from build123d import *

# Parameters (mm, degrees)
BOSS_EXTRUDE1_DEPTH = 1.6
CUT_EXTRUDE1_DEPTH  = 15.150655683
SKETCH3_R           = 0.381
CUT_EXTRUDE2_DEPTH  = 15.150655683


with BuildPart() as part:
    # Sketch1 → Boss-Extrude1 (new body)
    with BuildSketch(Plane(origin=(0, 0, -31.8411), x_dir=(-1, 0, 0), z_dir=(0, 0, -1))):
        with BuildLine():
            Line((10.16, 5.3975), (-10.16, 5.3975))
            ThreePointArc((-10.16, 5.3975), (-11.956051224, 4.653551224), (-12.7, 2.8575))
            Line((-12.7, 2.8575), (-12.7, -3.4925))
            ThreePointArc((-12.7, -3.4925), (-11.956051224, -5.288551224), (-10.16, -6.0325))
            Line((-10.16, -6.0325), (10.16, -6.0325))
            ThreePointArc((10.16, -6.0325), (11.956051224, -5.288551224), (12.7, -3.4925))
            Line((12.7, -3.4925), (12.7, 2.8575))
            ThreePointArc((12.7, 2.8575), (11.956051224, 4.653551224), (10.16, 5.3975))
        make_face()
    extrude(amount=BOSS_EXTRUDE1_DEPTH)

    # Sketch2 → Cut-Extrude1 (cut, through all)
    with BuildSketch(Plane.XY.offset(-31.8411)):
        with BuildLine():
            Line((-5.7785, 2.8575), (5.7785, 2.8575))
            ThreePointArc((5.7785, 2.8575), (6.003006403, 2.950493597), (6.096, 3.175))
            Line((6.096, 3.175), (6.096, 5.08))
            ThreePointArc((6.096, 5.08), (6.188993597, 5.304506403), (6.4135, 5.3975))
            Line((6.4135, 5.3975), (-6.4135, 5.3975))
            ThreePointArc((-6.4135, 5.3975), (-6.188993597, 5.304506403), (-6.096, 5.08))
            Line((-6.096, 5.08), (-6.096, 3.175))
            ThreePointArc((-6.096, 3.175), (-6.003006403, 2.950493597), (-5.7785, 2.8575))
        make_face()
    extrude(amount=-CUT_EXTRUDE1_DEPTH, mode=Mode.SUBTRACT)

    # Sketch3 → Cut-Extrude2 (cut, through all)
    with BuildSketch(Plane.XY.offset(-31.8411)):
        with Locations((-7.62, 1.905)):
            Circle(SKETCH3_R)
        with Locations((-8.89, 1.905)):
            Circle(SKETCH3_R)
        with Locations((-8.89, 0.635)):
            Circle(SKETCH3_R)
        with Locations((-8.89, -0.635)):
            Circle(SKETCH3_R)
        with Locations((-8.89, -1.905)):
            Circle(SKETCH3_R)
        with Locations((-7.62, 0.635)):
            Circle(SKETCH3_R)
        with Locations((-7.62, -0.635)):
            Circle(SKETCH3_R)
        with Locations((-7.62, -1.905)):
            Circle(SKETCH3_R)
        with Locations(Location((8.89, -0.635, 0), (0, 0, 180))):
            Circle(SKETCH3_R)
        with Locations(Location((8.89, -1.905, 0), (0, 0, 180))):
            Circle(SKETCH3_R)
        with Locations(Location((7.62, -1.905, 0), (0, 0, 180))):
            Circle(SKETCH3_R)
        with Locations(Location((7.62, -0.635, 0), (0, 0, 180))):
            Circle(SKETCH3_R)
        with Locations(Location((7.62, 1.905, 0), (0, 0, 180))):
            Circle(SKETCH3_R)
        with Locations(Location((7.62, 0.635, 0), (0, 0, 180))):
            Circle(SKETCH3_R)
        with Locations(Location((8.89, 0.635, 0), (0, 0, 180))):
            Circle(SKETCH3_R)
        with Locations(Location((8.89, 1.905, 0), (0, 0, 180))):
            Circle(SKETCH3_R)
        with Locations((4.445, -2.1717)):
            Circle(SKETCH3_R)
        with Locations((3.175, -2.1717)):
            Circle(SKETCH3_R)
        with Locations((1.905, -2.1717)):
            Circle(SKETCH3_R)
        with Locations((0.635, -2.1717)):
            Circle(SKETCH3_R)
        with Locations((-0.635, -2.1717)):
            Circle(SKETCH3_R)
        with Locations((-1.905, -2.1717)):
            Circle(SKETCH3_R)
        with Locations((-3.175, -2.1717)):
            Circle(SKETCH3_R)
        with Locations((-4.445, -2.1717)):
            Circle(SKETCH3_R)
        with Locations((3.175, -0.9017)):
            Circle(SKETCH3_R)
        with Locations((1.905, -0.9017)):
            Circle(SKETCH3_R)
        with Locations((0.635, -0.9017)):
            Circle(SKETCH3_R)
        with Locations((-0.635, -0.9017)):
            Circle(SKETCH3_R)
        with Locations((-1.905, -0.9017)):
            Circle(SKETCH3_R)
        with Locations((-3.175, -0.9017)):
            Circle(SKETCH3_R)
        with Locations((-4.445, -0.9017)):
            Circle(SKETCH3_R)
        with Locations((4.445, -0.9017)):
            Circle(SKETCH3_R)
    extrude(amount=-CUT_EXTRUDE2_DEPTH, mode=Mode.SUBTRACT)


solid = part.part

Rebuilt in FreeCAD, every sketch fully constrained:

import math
import FreeCAD as App
import Part
import Sketcher

V = App.Vector
Q = App.Units.Quantity

doc = App.newDocument("Part")
params = doc.addObject("Spreadsheet::Sheet", "Params")
for row, (alias, value) in enumerate([
    ("sketch1_radius", "0.1 in"),
    ("sketch1_width", "0.8 in"),
    ("sketch1_height", "0.25 in"),
    ("pad1_length", "1.6 mm"),
    ("sketch2_width", "0.455 in"),
    ("sketch3_diameter", "0.03 in"),
], start=1):
    params.set(f"A{row}", alias)
    params.set(f"B{row}", "=" + value)
    params.setAlias(f"B{row}", alias)

body = doc.addObject("PartDesign::Body", "Body")

# Sketch on XY plane
sketch1 = body.newObject("Sketcher::SketchObject", "Sketch")
sketch1.AttachmentSupport = (doc.getObject("XY_Plane"), [""])
sketch1.MapMode = "FlatFace"
sketch1.AttachmentOffset = App.Placement(V(0, 0, -31.8411), App.Rotation())
sketch1.addGeometry(Part.LineSegment(V(-10.2, 5.4, 0), V(10.2, 5.4, 0)), False)
sketch1.addGeometry(Part.ArcOfCircle(Part.Circle(V(10.2, 2.9, 0), V(0, 0, 1), 2.5), math.radians(0), math.radians(90)), False)
sketch1.addGeometry(Part.LineSegment(V(12.7, 2.9, 0), V(12.7, -3.5, 0)), False)
sketch1.addGeometry(Part.ArcOfCircle(Part.Circle(V(10.2, -3.5, 0), V(0, 0, 1), 2.5), math.radians(-90), math.radians(0)), False)
sketch1.addGeometry(Part.LineSegment(V(10.2, -6, 0), V(-10.2, -6, 0)), False)
sketch1.addGeometry(Part.ArcOfCircle(Part.Circle(V(-10.2, -3.5, 0), V(0, 0, 1), 2.5), math.radians(-180), math.radians(-90)), False)
sketch1.addGeometry(Part.LineSegment(V(-12.7, -3.5, 0), V(-12.7, 2.9, 0)), False)
sketch1.addGeometry(Part.ArcOfCircle(Part.Circle(V(-10.2, 2.9, 0), V(0, 0, 1), 2.5), math.radians(90), math.radians(180)), False)
sketch1.addConstraint(Sketcher.Constraint("Tangent", 0, 2, 1, 2))
sketch1.addConstraint(Sketcher.Constraint("Tangent", 1, 1, 2, 1))
sketch1.addConstraint(Sketcher.Constraint("Tangent", 2, 2, 3, 2))
sketch1.addConstraint(Sketcher.Constraint("Tangent", 3, 1, 4, 1))
sketch1.addConstraint(Sketcher.Constraint("Tangent", 4, 2, 5, 2))
sketch1.addConstraint(Sketcher.Constraint("Tangent", 5, 1, 6, 1))
sketch1.addConstraint(Sketcher.Constraint("Tangent", 6, 2, 7, 2))
sketch1.addConstraint(Sketcher.Constraint("Tangent", 7, 1, 0, 1))
sketch1.addConstraint(Sketcher.Constraint("Horizontal", 0))
sketch1.addConstraint(Sketcher.Constraint("Vertical", 2))
sketch1.addConstraint(Sketcher.Constraint("Horizontal", 4))
sketch1.addConstraint(Sketcher.Constraint("Vertical", 6))
sketch1.addConstraint(Sketcher.Constraint("Equal", 1, 3))
sketch1.addConstraint(Sketcher.Constraint("Equal", 3, 5))
sketch1.addConstraint(Sketcher.Constraint("Equal", 5, 7))
sketch1.addConstraint(Sketcher.Constraint("Radius", 1, Q("0.1 in")))
sketch1.addConstraint(Sketcher.Constraint("DistanceX", 0, 1, 0, 2, Q("0.8 in")))
sketch1.addConstraint(Sketcher.Constraint("DistanceY", 2, 2, 2, 1, Q("0.25 in")))
sketch1.addConstraint(Sketcher.Constraint("DistanceX", -1, 1, 1, 3, Q("0.4 in")))
sketch1.addConstraint(Sketcher.Constraint("DistanceY", -1, 1, 1, 3, Q("0.1125 in")))
sketch1.setExpression("Constraints[15]", "Params.sketch1_radius")
sketch1.setExpression("Constraints[16]", "Params.sketch1_width")
sketch1.setExpression("Constraints[17]", "Params.sketch1_height")
pad1 = body.newObject("PartDesign::Pad", "Pad")
pad1.Profile = sketch1
pad1.setExpression("Length", "Params.pad1_length")
pad1.Reversed = True

# Sketch on XY plane
sketch2 = body.newObject("Sketcher::SketchObject", "Sketch001")
sketch2.AttachmentSupport = (doc.getObject("XY_Plane"), [""])
sketch2.MapMode = "FlatFace"
sketch2.AttachmentOffset = App.Placement(V(0, 0, -31.8411), App.Rotation())
sketch2.addGeometry(Part.LineSegment(V(-5.78, 2.86, 0), V(5.78, 2.86, 0)), False)
sketch2.addGeometry(Part.ArcOfCircle(Part.Circle(V(5.78, 3.17, 0), V(0, 0, 1), 0.32), math.radians(-90), math.radians(0)), False)
sketch2.addGeometry(Part.LineSegment(V(6.1, 3.17, 0), V(6.1, 5.08, 0)), False)
sketch2.addGeometry(Part.ArcOfCircle(Part.Circle(V(6.41, 5.08, 0), V(0, 0, 1), 0.32), math.radians(90), math.radians(180)), False)
sketch2.addGeometry(Part.LineSegment(V(6.41, 5.4, 0), V(-6.41, 5.4, 0)), False)
sketch2.addGeometry(Part.ArcOfCircle(Part.Circle(V(-6.41, 5.08, 0), V(0, 0, 1), 0.32), math.radians(0), math.radians(90)), False)
sketch2.addGeometry(Part.LineSegment(V(-6.1, 5.08, 0), V(-6.1, 3.17, 0)), False)
sketch2.addGeometry(Part.ArcOfCircle(Part.Circle(V(-5.78, 3.17, 0), V(0, 0, 1), 0.32), math.radians(180), math.radians(270)), False)
sketch2.addConstraint(Sketcher.Constraint("Tangent", 0, 2, 1, 1))
sketch2.addConstraint(Sketcher.Constraint("Tangent", 1, 2, 2, 1))
sketch2.addConstraint(Sketcher.Constraint("Tangent", 2, 2, 3, 2))
sketch2.addConstraint(Sketcher.Constraint("Tangent", 3, 1, 4, 1))
sketch2.addConstraint(Sketcher.Constraint("Tangent", 4, 2, 5, 2))
sketch2.addConstraint(Sketcher.Constraint("Tangent", 5, 1, 6, 1))
sketch2.addConstraint(Sketcher.Constraint("Tangent", 6, 2, 7, 1))
sketch2.addConstraint(Sketcher.Constraint("Tangent", 7, 2, 0, 1))
sketch2.addConstraint(Sketcher.Constraint("Horizontal", 0))
sketch2.addConstraint(Sketcher.Constraint("Vertical", 2))
sketch2.addConstraint(Sketcher.Constraint("Horizontal", 4))
sketch2.addConstraint(Sketcher.Constraint("Vertical", 6))
sketch2.addConstraint(Sketcher.Constraint("Equal", 1, 3))
sketch2.addConstraint(Sketcher.Constraint("Equal", 3, 5))
sketch2.addConstraint(Sketcher.Constraint("Equal", 5, 7))
sketch2.addConstraint(Sketcher.Constraint("DistanceY", -1, 1, 3, 3, Q("0.2 in")))
sketch2.addConstraint(Sketcher.Constraint("Radius", 1, Q("0.0125 in")))
sketch2.addConstraint(Sketcher.Constraint("DistanceY", 0, 2, 3, 1, Q("0.1 in")))
sketch2.addConstraint(Sketcher.Constraint("DistanceX", 0, 1, 0, 2, Q("0.455 in")))
sketch2.addConstraint(Sketcher.Constraint("DistanceX", -1, 1, 1, 2, Q("0.24 in")))
sketch2.setExpression("Constraints[18]", "Params.sketch2_width")
pocket1 = body.newObject("PartDesign::Pocket", "Pocket")
pocket1.Profile = sketch2
pocket1.Type = "ThroughAll"

# Sketch on XY plane
sketch3 = body.newObject("Sketcher::SketchObject", "Sketch002")
sketch3.AttachmentSupport = (doc.getObject("XY_Plane"), [""])
sketch3.MapMode = "FlatFace"
sketch3.AttachmentOffset = App.Placement(V(0, 0, -31.8411), App.Rotation())
sketch3.addGeometry(Part.Circle(V(-7.62, 1.91, 0), V(0, 0, 1), 0.38), False)
sketch3.addGeometry(Part.Circle(V(-8.89, 1.91, 0), V(0, 0, 1), 0.38), False)
sketch3.addGeometry(Part.Circle(V(-8.89, 0.64, 0), V(0, 0, 1), 0.38), False)
sketch3.addGeometry(Part.Circle(V(-8.89, -0.64, 0), V(0, 0, 1), 0.38), False)
sketch3.addGeometry(Part.Circle(V(-8.89, -1.91, 0), V(0, 0, 1), 0.38), False)
sketch3.addGeometry(Part.Circle(V(-7.62, 0.64, 0), V(0, 0, 1), 0.38), False)
sketch3.addGeometry(Part.Circle(V(-7.62, -0.64, 0), V(0, 0, 1), 0.38), False)
sketch3.addGeometry(Part.Circle(V(-7.62, -1.91, 0), V(0, 0, 1), 0.38), False)
sketch3.addGeometry(Part.Circle(V(8.89, -0.64, 0), V(0, 0, 1), 0.38), False)
sketch3.addGeometry(Part.Circle(V(8.89, -1.91, 0), V(0, 0, 1), 0.38), False)
sketch3.addGeometry(Part.Circle(V(7.62, -1.91, 0), V(0, 0, 1), 0.38), False)
sketch3.addGeometry(Part.Circle(V(7.62, -0.64, 0), V(0, 0, 1), 0.38), False)
sketch3.addGeometry(Part.Circle(V(7.62, 1.91, 0), V(0, 0, 1), 0.38), False)
sketch3.addGeometry(Part.Circle(V(7.62, 0.64, 0), V(0, 0, 1), 0.38), False)
sketch3.addGeometry(Part.Circle(V(8.89, 0.64, 0), V(0, 0, 1), 0.38), False)
sketch3.addGeometry(Part.Circle(V(8.89, 1.91, 0), V(0, 0, 1), 0.38), False)
sketch3.addGeometry(Part.Circle(V(4.45, -2.17, 0), V(0, 0, 1), 0.38), False)
sketch3.addGeometry(Part.Circle(V(3.17, -2.17, 0), V(0, 0, 1), 0.38), False)
sketch3.addGeometry(Part.Circle(V(1.91, -2.17, 0), V(0, 0, 1), 0.38), False)
sketch3.addGeometry(Part.Circle(V(0.64, -2.17, 0), V(0, 0, 1), 0.38), False)
sketch3.addGeometry(Part.Circle(V(-0.64, -2.17, 0), V(0, 0, 1), 0.38), False)
sketch3.addGeometry(Part.Circle(V(-1.91, -2.17, 0), V(0, 0, 1), 0.38), False)
sketch3.addGeometry(Part.Circle(V(-3.17, -2.17, 0), V(0, 0, 1), 0.38), False)
sketch3.addGeometry(Part.Circle(V(-4.45, -2.17, 0), V(0, 0, 1), 0.38), False)
sketch3.addGeometry(Part.Circle(V(3.17, -0.9, 0), V(0, 0, 1), 0.38), False)
sketch3.addGeometry(Part.Circle(V(1.91, -0.9, 0), V(0, 0, 1), 0.38), False)
sketch3.addGeometry(Part.Circle(V(0.64, -0.9, 0), V(0, 0, 1), 0.38), False)
sketch3.addGeometry(Part.Circle(V(-0.64, -0.9, 0), V(0, 0, 1), 0.38), False)
sketch3.addGeometry(Part.Circle(V(-1.91, -0.9, 0), V(0, 0, 1), 0.38), False)
sketch3.addGeometry(Part.Circle(V(-3.17, -0.9, 0), V(0, 0, 1), 0.38), False)
sketch3.addGeometry(Part.Circle(V(-4.45, -0.9, 0), V(0, 0, 1), 0.38), False)
sketch3.addGeometry(Part.Circle(V(4.45, -0.9, 0), V(0, 0, 1), 0.38), False)
sketch3.addConstraint(Sketcher.Constraint("Equal", 0, 1))
sketch3.addConstraint(Sketcher.Constraint("Equal", 1, 2))
sketch3.addConstraint(Sketcher.Constraint("Equal", 2, 3))
sketch3.addConstraint(Sketcher.Constraint("Equal", 3, 4))
sketch3.addConstraint(Sketcher.Constraint("Equal", 4, 5))
sketch3.addConstraint(Sketcher.Constraint("Equal", 5, 6))
sketch3.addConstraint(Sketcher.Constraint("Equal", 6, 7))
sketch3.addConstraint(Sketcher.Constraint("Equal", 7, 8))
sketch3.addConstraint(Sketcher.Constraint("Equal", 8, 9))
sketch3.addConstraint(Sketcher.Constraint("Equal", 9, 10))
sketch3.addConstraint(Sketcher.Constraint("Equal", 10, 11))
sketch3.addConstraint(Sketcher.Constraint("Equal", 11, 12))
sketch3.addConstraint(Sketcher.Constraint("Equal", 12, 13))
sketch3.addConstraint(Sketcher.Constraint("Equal", 13, 14))
sketch3.addConstraint(Sketcher.Constraint("Equal", 14, 15))
sketch3.addConstraint(Sketcher.Constraint("Equal", 15, 16))
sketch3.addConstraint(Sketcher.Constraint("Equal", 16, 17))
sketch3.addConstraint(Sketcher.Constraint("Equal", 17, 18))
sketch3.addConstraint(Sketcher.Constraint("Equal", 18, 19))
sketch3.addConstraint(Sketcher.Constraint("Equal", 19, 20))
sketch3.addConstraint(Sketcher.Constraint("Equal", 20, 21))
sketch3.addConstraint(Sketcher.Constraint("Equal", 21, 22))
sketch3.addConstraint(Sketcher.Constraint("Equal", 22, 23))
sketch3.addConstraint(Sketcher.Constraint("Equal", 23, 24))
sketch3.addConstraint(Sketcher.Constraint("Equal", 24, 25))
sketch3.addConstraint(Sketcher.Constraint("Equal", 25, 26))
sketch3.addConstraint(Sketcher.Constraint("Equal", 26, 27))
sketch3.addConstraint(Sketcher.Constraint("Equal", 27, 28))
sketch3.addConstraint(Sketcher.Constraint("Equal", 28, 29))
sketch3.addConstraint(Sketcher.Constraint("Equal", 29, 30))
sketch3.addConstraint(Sketcher.Constraint("Equal", 30, 31))
sketch3.addConstraint(Sketcher.Constraint("Symmetric", 2, 3, 8, 3, -1, 1))
sketch3.addConstraint(Sketcher.Constraint("Symmetric", 1, 3, 9, 3, -1, 1))
sketch3.addConstraint(Sketcher.Constraint("Symmetric", 0, 3, 10, 3, -1, 1))
sketch3.addConstraint(Sketcher.Constraint("Symmetric", 5, 3, 11, 3, -1, 1))
sketch3.addConstraint(Sketcher.Constraint("Symmetric", 7, 3, 12, 3, -1, 1))
sketch3.addConstraint(Sketcher.Constraint("Symmetric", 6, 3, 13, 3, -1, 1))
sketch3.addConstraint(Sketcher.Constraint("Symmetric", 3, 3, 14, 3, -1, 1))
sketch3.addConstraint(Sketcher.Constraint("Symmetric", 4, 3, 15, 3, -1, 1))
sketch3.addConstraint(Sketcher.Constraint("Symmetric", 3, 3, 8, 3, -2))
sketch3.addConstraint(Sketcher.Constraint("Symmetric", 4, 3, 9, 3, -2))
sketch3.addConstraint(Sketcher.Constraint("Symmetric", 7, 3, 10, 3, -2))
sketch3.addConstraint(Sketcher.Constraint("Symmetric", 6, 3, 11, 3, -2))
sketch3.addConstraint(Sketcher.Constraint("Symmetric", 19, 3, 20, 3, -2))
sketch3.addConstraint(Sketcher.Constraint("Symmetric", 18, 3, 21, 3, -2))
sketch3.addConstraint(Sketcher.Constraint("Symmetric", 17, 3, 22, 3, -2))
sketch3.addConstraint(Sketcher.Constraint("Symmetric", 16, 3, 23, 3, -2))
sketch3.addConstraint(Sketcher.Constraint("Symmetric", 26, 3, 27, 3, -2))
sketch3.addConstraint(Sketcher.Constraint("Symmetric", 25, 3, 28, 3, -2))
sketch3.addConstraint(Sketcher.Constraint("Symmetric", 24, 3, 29, 3, -2))
sketch3.addConstraint(Sketcher.Constraint("Symmetric", 30, 3, 31, 3, -2))
sketch3.addConstraint(Sketcher.Constraint("Horizontal", 0, 3, 1, 3))
sketch3.addConstraint(Sketcher.Constraint("Horizontal", 2, 3, 5, 3))
sketch3.addConstraint(Sketcher.Constraint("Horizontal", 16, 3, 17, 3))
sketch3.addConstraint(Sketcher.Constraint("Horizontal", 17, 3, 18, 3))
sketch3.addConstraint(Sketcher.Constraint("Horizontal", 18, 3, 19, 3))
sketch3.addConstraint(Sketcher.Constraint("Horizontal", 24, 3, 25, 3))
sketch3.addConstraint(Sketcher.Constraint("Horizontal", 25, 3, 26, 3))
sketch3.addConstraint(Sketcher.Constraint("Horizontal", 29, 3, 30, 3))
sketch3.addConstraint(Sketcher.Constraint("Vertical", 1, 3, 2, 3))
sketch3.addConstraint(Sketcher.Constraint("Vertical", 0, 3, 5, 3))
sketch3.addConstraint(Sketcher.Constraint("Vertical", 17, 3, 24, 3))
sketch3.addConstraint(Sketcher.Constraint("Vertical", 18, 3, 25, 3))
sketch3.addConstraint(Sketcher.Constraint("Vertical", 19, 3, 26, 3))
sketch3.addConstraint(Sketcher.Constraint("Vertical", 23, 3, 30, 3))
sketch3.addConstraint(Sketcher.Constraint("Diameter", 0, Q("0.03 in")))
sketch3.addConstraint(Sketcher.Constraint("DistanceX", 0, 3, -1, 1, Q("0.3 in")))
sketch3.addConstraint(Sketcher.Constraint("DistanceY", 3, 3, 1, 3, Q("0.1 in")))
sketch3.addConstraint(Sketcher.Constraint("DistanceX", 3, 3, 8, 3, Q("0.7 in")))
sketch3.addConstraint(Sketcher.Constraint("DistanceX", 18, 3, 16, 3, Q("0.1 in")))
sketch3.addConstraint(Sketcher.Constraint("DistanceX", 19, 3, 17, 3, Q("0.1 in")))
sketch3.addConstraint(Sketcher.Constraint("DistanceX", 20, 3, 18, 3, Q("0.1 in")))
sketch3.addConstraint(Sketcher.Constraint("DistanceY", 2, 3, 1, 3, Q("0.05 in")))
sketch3.addConstraint(Sketcher.Constraint("DistanceX", 17, 3, 16, 3, Q("0.05 in")))
sketch3.addConstraint(Sketcher.Constraint("DistanceY", 17, 3, 24, 3, Q("0.05 in")))
sketch3.addConstraint(Sketcher.Constraint("DistanceY", 16, 3, -1, 1, Q("0.0855 in")))
sketch3.setExpression("Constraints[65]", "Params.sketch3_diameter")
pocket2 = body.newObject("PartDesign::Pocket", "Pocket001")
pocket2.Profile = sketch3
pocket2.Type = "ThroughAll"

doc.recompute()
